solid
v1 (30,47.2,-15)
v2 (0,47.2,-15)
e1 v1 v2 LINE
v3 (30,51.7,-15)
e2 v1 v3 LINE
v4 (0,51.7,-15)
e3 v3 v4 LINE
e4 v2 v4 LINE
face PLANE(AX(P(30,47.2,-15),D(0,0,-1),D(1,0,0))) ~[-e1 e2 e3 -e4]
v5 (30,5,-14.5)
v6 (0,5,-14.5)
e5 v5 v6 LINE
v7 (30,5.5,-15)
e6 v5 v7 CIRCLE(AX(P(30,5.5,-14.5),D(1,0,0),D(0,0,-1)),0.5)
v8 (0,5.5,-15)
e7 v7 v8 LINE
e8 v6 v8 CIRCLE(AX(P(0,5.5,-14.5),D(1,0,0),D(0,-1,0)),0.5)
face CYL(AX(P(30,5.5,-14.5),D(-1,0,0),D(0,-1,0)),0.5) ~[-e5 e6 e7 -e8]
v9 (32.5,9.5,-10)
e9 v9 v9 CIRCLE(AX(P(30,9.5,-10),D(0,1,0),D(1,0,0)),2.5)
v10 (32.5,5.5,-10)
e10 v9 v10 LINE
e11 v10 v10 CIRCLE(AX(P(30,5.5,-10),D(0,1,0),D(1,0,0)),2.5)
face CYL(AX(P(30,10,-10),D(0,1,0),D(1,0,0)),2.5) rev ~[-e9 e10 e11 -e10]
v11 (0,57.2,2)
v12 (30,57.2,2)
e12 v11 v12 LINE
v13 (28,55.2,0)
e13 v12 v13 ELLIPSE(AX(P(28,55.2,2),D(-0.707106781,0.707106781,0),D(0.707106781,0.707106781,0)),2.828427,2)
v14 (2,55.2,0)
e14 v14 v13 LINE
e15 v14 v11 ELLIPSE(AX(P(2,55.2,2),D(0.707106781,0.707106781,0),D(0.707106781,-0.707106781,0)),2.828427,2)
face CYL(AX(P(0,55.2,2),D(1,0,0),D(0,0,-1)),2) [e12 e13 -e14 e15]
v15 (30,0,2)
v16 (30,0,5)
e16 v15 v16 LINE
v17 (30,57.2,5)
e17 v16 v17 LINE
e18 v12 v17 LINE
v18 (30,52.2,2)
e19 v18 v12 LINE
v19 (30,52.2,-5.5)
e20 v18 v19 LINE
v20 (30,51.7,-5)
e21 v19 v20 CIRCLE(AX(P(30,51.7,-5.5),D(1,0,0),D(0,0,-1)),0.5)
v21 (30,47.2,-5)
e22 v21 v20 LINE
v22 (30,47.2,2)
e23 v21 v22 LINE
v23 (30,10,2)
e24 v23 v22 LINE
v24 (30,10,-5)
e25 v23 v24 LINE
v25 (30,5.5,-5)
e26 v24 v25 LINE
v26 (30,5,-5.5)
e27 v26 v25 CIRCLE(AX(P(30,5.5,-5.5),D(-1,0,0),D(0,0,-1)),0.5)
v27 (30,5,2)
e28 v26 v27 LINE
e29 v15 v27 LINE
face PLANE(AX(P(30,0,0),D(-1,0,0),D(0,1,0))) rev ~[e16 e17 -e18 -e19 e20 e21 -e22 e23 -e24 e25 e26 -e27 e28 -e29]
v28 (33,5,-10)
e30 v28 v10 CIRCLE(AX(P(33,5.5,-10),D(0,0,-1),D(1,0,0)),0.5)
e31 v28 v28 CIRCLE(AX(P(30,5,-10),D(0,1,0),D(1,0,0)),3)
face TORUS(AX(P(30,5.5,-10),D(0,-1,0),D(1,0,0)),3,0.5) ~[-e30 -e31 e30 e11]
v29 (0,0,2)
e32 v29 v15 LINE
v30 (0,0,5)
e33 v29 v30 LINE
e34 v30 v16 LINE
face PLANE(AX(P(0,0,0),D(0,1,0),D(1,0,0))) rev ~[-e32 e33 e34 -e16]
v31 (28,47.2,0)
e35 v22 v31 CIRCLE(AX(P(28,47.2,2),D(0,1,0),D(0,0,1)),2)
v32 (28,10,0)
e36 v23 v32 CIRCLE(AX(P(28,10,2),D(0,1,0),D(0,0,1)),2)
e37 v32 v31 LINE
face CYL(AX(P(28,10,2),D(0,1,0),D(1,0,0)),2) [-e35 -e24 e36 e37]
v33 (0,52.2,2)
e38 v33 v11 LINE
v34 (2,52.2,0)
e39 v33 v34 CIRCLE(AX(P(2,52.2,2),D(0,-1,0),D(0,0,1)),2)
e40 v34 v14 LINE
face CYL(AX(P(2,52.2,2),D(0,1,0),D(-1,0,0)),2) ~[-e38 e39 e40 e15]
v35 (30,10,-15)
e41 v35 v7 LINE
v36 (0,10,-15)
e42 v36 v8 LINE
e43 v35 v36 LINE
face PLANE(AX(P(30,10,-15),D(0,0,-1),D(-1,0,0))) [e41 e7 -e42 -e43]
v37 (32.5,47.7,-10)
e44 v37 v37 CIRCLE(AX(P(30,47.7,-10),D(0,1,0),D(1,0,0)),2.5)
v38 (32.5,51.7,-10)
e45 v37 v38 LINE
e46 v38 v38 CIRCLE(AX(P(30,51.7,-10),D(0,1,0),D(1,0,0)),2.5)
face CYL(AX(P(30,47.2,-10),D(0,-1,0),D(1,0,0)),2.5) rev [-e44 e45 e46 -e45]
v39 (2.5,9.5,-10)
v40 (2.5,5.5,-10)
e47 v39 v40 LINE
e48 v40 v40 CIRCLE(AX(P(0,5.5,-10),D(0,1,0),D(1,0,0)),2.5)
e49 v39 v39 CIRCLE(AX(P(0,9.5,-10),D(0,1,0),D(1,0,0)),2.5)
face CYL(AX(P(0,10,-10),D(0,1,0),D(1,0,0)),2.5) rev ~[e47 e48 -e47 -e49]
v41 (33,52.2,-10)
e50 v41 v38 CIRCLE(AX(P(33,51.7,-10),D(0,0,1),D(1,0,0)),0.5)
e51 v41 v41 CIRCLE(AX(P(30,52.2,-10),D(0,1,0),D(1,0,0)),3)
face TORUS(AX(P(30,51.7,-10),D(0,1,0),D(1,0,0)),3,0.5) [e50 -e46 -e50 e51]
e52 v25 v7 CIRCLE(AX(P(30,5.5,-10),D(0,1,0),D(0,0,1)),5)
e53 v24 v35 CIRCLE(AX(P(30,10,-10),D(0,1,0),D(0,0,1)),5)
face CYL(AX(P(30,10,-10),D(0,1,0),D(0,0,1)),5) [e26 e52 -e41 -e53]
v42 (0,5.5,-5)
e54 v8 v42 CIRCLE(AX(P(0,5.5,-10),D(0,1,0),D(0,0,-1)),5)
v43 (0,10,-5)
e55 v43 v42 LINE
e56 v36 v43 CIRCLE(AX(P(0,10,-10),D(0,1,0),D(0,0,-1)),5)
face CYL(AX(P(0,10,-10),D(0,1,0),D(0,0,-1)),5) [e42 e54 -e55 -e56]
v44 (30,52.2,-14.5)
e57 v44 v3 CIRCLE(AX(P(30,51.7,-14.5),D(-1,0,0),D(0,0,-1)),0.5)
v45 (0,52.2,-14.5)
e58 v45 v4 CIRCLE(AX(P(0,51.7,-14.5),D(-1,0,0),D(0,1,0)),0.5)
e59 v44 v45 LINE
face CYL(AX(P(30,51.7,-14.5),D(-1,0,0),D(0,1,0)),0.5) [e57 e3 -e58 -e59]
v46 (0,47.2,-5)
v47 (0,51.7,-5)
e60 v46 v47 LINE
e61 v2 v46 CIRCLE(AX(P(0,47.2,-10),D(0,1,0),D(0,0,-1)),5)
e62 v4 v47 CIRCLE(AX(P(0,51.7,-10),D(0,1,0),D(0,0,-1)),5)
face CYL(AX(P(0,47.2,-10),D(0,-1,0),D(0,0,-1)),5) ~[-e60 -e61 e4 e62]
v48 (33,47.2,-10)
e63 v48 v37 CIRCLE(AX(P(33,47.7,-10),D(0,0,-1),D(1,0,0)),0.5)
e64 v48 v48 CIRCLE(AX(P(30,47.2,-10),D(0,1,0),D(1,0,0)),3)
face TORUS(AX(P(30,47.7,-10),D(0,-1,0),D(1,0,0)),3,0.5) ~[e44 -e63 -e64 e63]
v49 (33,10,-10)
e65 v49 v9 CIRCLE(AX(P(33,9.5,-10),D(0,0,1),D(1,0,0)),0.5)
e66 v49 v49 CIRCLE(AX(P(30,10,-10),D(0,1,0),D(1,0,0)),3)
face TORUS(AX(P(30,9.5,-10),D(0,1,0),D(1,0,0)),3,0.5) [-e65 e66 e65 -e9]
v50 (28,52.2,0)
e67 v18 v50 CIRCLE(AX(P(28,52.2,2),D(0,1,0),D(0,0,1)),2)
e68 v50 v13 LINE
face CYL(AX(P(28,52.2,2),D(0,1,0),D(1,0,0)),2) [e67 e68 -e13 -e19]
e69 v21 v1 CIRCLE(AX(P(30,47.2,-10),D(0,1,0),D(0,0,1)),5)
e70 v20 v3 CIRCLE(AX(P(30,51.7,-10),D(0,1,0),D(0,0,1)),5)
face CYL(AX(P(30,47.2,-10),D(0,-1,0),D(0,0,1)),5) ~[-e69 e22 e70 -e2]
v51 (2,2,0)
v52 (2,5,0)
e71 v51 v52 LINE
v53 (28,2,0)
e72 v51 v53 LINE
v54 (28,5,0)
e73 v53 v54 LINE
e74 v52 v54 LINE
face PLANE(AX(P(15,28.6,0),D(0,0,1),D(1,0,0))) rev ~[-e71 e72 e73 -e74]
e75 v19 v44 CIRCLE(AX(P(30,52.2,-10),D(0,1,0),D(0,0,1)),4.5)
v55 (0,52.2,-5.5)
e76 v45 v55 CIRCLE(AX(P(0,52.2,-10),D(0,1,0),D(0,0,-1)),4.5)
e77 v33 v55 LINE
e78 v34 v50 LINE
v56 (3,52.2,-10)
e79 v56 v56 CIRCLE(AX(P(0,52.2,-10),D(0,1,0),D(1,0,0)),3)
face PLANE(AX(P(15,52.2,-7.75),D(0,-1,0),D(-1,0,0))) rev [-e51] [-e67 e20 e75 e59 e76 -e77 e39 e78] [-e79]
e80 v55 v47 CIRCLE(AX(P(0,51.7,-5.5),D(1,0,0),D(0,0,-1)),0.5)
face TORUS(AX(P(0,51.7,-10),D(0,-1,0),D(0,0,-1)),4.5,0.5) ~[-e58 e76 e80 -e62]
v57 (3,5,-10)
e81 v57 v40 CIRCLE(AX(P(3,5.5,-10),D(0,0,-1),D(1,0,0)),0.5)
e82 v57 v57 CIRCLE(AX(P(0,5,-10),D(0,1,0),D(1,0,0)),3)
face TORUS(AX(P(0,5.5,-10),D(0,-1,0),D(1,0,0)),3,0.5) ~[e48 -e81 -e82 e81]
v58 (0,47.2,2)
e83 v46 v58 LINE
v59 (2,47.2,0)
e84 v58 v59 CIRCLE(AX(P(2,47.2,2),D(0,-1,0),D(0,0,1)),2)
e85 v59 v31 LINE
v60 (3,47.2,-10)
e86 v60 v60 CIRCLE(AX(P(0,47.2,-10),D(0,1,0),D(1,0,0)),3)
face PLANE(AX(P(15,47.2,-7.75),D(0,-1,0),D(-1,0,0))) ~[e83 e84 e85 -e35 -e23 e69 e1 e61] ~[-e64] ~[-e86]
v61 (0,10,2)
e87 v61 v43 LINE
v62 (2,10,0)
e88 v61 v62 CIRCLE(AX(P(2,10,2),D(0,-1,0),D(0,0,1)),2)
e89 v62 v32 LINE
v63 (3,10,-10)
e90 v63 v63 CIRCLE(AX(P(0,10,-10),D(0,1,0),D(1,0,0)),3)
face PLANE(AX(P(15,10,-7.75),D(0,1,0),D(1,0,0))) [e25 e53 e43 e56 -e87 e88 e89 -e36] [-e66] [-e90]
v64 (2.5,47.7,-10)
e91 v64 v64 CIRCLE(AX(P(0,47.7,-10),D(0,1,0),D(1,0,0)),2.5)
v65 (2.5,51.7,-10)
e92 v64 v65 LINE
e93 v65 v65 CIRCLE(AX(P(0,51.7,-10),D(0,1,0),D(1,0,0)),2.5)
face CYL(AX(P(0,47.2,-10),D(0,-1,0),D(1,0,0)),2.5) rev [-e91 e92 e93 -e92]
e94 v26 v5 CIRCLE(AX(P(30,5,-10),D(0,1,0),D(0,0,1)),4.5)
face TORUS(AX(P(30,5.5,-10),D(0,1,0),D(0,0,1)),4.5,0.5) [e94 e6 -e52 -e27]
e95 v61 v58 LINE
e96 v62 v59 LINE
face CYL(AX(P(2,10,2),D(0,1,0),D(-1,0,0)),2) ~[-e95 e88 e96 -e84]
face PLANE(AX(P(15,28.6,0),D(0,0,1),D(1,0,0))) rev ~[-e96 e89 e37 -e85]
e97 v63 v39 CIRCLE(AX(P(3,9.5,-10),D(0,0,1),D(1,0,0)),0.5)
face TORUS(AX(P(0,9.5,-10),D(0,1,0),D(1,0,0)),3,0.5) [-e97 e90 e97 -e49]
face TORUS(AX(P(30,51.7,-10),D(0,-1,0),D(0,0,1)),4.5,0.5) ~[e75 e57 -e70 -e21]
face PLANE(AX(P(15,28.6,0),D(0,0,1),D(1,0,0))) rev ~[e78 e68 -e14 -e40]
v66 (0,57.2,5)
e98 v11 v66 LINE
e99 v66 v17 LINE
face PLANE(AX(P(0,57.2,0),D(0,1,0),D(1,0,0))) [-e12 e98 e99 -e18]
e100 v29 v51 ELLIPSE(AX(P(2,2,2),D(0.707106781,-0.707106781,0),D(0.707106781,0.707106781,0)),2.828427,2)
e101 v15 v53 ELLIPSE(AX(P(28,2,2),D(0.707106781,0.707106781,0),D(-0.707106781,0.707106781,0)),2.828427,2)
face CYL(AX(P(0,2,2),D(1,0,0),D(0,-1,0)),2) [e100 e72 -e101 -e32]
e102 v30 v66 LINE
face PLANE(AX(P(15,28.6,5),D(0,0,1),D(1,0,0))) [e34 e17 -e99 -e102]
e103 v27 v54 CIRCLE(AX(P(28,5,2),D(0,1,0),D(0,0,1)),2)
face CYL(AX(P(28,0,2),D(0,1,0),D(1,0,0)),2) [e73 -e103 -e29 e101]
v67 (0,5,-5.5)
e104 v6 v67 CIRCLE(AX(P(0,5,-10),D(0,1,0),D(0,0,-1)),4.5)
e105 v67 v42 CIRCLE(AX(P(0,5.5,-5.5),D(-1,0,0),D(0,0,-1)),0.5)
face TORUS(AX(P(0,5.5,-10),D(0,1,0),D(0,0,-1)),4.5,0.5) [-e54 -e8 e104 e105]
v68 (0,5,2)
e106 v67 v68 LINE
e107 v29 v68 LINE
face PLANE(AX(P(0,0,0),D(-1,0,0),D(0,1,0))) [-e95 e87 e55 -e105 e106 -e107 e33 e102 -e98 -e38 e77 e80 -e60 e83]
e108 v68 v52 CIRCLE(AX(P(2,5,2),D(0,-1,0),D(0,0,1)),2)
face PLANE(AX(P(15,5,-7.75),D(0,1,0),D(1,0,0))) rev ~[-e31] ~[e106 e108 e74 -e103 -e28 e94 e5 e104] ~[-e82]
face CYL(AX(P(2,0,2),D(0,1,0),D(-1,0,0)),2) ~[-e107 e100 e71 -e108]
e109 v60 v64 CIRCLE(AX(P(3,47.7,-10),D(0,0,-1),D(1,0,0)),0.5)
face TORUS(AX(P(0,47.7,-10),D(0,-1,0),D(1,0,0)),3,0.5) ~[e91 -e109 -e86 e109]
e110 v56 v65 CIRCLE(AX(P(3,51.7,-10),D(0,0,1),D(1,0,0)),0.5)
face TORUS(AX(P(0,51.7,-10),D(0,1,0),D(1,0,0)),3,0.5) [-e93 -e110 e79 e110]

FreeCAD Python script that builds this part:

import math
import FreeCAD as App
import Part
import Sketcher


def edges_at(feature, points):
    """Names of the edges that pass closest to the given points."""
    edges = feature.Shape.Edges
    near = lambda p: min(range(len(edges)), key=lambda i: edges[i].distToShape(Part.Vertex(*p))[0])
    return sorted({f"Edge{near(p) + 1}" for p in points})


def add_polygon(sketch, points):
    """Adds a closed chain of lines whose ends are joined by coincident constraints."""
    first, n = sketch.GeometryCount, len(points)
    for a, b in zip(points, points[1:] + points[:1]):
        sketch.addGeometry(Part.LineSegment(App.Vector(*a, 0), App.Vector(*b, 0)), False)
    for i in range(n):
        sketch.addConstraint(Sketcher.Constraint("Coincident", first + i, 2, first + (i + 1) % n, 1))

doc = App.newDocument("Part")
body = doc.addObject("PartDesign::Body", "Body")

# Sketch on XY plane
sketch1 = doc.addObject("Sketcher::SketchObject", "Sketch")
body.addObject(sketch1)
sketch1.AttachmentSupport = (doc.XY_Plane, [""])
sketch1.MapMode = "FlatFace"
add_polygon(sketch1, [(0, 57), (0, 0), (30, 0), (30, 57)])  # lines 0-3
sketch1.addConstraint(Sketcher.Constraint("Vertical", 0))
sketch1.addConstraint(Sketcher.Constraint("Horizontal", 1))
sketch1.addConstraint(Sketcher.Constraint("Vertical", 2))
sketch1.addConstraint(Sketcher.Constraint("Horizontal", 3))
sketch1.addConstraint(Sketcher.Constraint("Coincident", 0, 2, -1, 1))
sketch1.addConstraint(Sketcher.Constraint("DistanceX", 1, 1, 1, 2, 30.0))
sketch1.addConstraint(Sketcher.Constraint("DistanceY", 0, 2, 0, 1, 57.2))
pad1 = doc.addObject("PartDesign::Pad", "Pad")
body.addObject(pad1)
pad1.Profile = sketch1
pad1.Length = 5

# Sketch on XZ plane
sketch2 = doc.addObject("Sketcher::SketchObject", "Sketch001")
body.addObject(sketch2)
sketch2.AttachmentSupport = (doc.XZ_Plane, [""])
sketch2.MapMode = "FlatFace"
sketch2.AttachmentOffset = App.Placement(App.Vector(0, 0, -10), App.Rotation())
sketch2.addGeometry(Part.LineSegment(App.Vector(30, -15, 0), App.Vector(0, -15, 0)), False)
sketch2.addGeometry(Part.ArcOfCircle(Part.Circle(App.Vector(0, -10, 0), App.Vector(0, 0, 1), 5), math.radians(90), math.radians(270)), False)
sketch2.addGeometry(Part.LineSegment(App.Vector(0, -5, 0), App.Vector(0, 0, 0)), False)
sketch2.addGeometry(Part.LineSegment(App.Vector(0, 0, 0), App.Vector(30, 0, 0)), False)
sketch2.addGeometry(Part.LineSegment(App.Vector(30, 0, 0), App.Vector(30, -5, 0)), False)
sketch2.addGeometry(Part.ArcOfCircle(Part.Circle(App.Vector(30, -10, 0), App.Vector(0, 0, 1), 5), math.radians(-90), math.radians(90)), False)
sketch2.addGeometry(Part.Circle(App.Vector(0, -10, 0), App.Vector(0, 0, 1), 2.5), False)
sketch2.addGeometry(Part.Circle(App.Vector(30, -10, 0), App.Vector(0, 0, 1), 2.5), False)
sketch2.addConstraint(Sketcher.Constraint("Tangent", 0, 2, 1, 2))
sketch2.addConstraint(Sketcher.Constraint("Coincident", 1, 1, 2, 1))
sketch2.addConstraint(Sketcher.Constraint("Coincident", 2, 2, 3, 1))
sketch2.addConstraint(Sketcher.Constraint("Coincident", 3, 2, 4, 1))
sketch2.addConstraint(Sketcher.Constraint("Coincident", 4, 2, 5, 2))
sketch2.addConstraint(Sketcher.Constraint("Tangent", 5, 1, 0, 1))
sketch2.addConstraint(Sketcher.Constraint("Horizontal", 0))
sketch2.addConstraint(Sketcher.Constraint("Vertical", 2))
sketch2.addConstraint(Sketcher.Constraint("Horizontal", 3))
sketch2.addConstraint(Sketcher.Constraint("Vertical", 4))
sketch2.addConstraint(Sketcher.Constraint("Coincident", 2, 2, -1, 1))
sketch2.addConstraint(Sketcher.Constraint("Coincident", 6, 3, 1, 3))
sketch2.addConstraint(Sketcher.Constraint("Coincident", 7, 3, 5, 3))
sketch2.addConstraint(Sketcher.Constraint("Equal", 1, 5))
sketch2.addConstraint(Sketcher.Constraint("Equal", 6, 7))
sketch2.addConstraint(Sketcher.Constraint("PointOnObject", 1, 3, -2))
sketch2.addConstraint(Sketcher.Constraint("Vertical", 7, 3, 3, 2))
sketch2.addConstraint(Sketcher.Constraint("Diameter", 6, 5.0))
sketch2.addConstraint(Sketcher.Constraint("Radius", 1, 5.0))
sketch2.addConstraint(Sketcher.Constraint("DistanceX", 0, 2, 0, 1, 30.0))
sketch2.addConstraint(Sketcher.Constraint("DistanceY", 2, 1, 2, 2, 5.0))
pad2 = doc.addObject("PartDesign::Pad", "Pad001")
body.addObject(pad2)
pad2.Profile = sketch2
pad2.Length = 5
doc.recompute()

datumplane = doc.addObject("PartDesign::Plane", "DatumPlane")
body.addObject(datumplane)
datumplane.AttachmentSupport = (doc.XZ_Plane, [""])
datumplane.MapMode = "FlatFace"
datumplane.AttachmentOffset = App.Placement(App.Vector(0, 0, -28.6), App.Rotation())
mirrored = doc.addObject("PartDesign::Mirrored", "Mirrored")
body.addObject(mirrored)
mirrored.Originals = [pad2]
mirrored.MirrorPlane = (datumplane, [""])
body.Tip = mirrored
doc.recompute()

fillet = doc.addObject("PartDesign::Fillet", "Fillet")
body.addObject(fillet)
fillet.Base = (mirrored, edges_at(mirrored, [
    (35, 5, -10),
    (-5, 5, -10),
    (15, 5, -15),
    (-2.5, 5, -10),
    (27.5, 5, -10),
    (27.5, 10, -10),
    (-2.5, 10, -10),
    (35, 52.2, -10),
    (15, 52.2, -15),
    (-5, 52.2, -10),
    (27.5, 47.2, -10),
    (-2.5, 47.2, -10),
    (27.5, 52.2, -10),
    (-2.5, 52.2, -10),
]))
fillet.Radius = 0.5
doc.recompute()

fillet2 = doc.addObject("PartDesign::Fillet", "Fillet001")
body.addObject(fillet2)
fillet2.Base = (fillet, edges_at(fillet, [
    (0, 2.5, 0),
    (30, 28.6, 0),
    (0, 28.6, 0),
    (30, 54.7, 0),
    (15, 57.2, 0),
    (30, 2.5, 0),
    (15, 0, 0),
    (0, 54.7, 0),
]))
fillet2.Radius = 2

doc.recompute()
